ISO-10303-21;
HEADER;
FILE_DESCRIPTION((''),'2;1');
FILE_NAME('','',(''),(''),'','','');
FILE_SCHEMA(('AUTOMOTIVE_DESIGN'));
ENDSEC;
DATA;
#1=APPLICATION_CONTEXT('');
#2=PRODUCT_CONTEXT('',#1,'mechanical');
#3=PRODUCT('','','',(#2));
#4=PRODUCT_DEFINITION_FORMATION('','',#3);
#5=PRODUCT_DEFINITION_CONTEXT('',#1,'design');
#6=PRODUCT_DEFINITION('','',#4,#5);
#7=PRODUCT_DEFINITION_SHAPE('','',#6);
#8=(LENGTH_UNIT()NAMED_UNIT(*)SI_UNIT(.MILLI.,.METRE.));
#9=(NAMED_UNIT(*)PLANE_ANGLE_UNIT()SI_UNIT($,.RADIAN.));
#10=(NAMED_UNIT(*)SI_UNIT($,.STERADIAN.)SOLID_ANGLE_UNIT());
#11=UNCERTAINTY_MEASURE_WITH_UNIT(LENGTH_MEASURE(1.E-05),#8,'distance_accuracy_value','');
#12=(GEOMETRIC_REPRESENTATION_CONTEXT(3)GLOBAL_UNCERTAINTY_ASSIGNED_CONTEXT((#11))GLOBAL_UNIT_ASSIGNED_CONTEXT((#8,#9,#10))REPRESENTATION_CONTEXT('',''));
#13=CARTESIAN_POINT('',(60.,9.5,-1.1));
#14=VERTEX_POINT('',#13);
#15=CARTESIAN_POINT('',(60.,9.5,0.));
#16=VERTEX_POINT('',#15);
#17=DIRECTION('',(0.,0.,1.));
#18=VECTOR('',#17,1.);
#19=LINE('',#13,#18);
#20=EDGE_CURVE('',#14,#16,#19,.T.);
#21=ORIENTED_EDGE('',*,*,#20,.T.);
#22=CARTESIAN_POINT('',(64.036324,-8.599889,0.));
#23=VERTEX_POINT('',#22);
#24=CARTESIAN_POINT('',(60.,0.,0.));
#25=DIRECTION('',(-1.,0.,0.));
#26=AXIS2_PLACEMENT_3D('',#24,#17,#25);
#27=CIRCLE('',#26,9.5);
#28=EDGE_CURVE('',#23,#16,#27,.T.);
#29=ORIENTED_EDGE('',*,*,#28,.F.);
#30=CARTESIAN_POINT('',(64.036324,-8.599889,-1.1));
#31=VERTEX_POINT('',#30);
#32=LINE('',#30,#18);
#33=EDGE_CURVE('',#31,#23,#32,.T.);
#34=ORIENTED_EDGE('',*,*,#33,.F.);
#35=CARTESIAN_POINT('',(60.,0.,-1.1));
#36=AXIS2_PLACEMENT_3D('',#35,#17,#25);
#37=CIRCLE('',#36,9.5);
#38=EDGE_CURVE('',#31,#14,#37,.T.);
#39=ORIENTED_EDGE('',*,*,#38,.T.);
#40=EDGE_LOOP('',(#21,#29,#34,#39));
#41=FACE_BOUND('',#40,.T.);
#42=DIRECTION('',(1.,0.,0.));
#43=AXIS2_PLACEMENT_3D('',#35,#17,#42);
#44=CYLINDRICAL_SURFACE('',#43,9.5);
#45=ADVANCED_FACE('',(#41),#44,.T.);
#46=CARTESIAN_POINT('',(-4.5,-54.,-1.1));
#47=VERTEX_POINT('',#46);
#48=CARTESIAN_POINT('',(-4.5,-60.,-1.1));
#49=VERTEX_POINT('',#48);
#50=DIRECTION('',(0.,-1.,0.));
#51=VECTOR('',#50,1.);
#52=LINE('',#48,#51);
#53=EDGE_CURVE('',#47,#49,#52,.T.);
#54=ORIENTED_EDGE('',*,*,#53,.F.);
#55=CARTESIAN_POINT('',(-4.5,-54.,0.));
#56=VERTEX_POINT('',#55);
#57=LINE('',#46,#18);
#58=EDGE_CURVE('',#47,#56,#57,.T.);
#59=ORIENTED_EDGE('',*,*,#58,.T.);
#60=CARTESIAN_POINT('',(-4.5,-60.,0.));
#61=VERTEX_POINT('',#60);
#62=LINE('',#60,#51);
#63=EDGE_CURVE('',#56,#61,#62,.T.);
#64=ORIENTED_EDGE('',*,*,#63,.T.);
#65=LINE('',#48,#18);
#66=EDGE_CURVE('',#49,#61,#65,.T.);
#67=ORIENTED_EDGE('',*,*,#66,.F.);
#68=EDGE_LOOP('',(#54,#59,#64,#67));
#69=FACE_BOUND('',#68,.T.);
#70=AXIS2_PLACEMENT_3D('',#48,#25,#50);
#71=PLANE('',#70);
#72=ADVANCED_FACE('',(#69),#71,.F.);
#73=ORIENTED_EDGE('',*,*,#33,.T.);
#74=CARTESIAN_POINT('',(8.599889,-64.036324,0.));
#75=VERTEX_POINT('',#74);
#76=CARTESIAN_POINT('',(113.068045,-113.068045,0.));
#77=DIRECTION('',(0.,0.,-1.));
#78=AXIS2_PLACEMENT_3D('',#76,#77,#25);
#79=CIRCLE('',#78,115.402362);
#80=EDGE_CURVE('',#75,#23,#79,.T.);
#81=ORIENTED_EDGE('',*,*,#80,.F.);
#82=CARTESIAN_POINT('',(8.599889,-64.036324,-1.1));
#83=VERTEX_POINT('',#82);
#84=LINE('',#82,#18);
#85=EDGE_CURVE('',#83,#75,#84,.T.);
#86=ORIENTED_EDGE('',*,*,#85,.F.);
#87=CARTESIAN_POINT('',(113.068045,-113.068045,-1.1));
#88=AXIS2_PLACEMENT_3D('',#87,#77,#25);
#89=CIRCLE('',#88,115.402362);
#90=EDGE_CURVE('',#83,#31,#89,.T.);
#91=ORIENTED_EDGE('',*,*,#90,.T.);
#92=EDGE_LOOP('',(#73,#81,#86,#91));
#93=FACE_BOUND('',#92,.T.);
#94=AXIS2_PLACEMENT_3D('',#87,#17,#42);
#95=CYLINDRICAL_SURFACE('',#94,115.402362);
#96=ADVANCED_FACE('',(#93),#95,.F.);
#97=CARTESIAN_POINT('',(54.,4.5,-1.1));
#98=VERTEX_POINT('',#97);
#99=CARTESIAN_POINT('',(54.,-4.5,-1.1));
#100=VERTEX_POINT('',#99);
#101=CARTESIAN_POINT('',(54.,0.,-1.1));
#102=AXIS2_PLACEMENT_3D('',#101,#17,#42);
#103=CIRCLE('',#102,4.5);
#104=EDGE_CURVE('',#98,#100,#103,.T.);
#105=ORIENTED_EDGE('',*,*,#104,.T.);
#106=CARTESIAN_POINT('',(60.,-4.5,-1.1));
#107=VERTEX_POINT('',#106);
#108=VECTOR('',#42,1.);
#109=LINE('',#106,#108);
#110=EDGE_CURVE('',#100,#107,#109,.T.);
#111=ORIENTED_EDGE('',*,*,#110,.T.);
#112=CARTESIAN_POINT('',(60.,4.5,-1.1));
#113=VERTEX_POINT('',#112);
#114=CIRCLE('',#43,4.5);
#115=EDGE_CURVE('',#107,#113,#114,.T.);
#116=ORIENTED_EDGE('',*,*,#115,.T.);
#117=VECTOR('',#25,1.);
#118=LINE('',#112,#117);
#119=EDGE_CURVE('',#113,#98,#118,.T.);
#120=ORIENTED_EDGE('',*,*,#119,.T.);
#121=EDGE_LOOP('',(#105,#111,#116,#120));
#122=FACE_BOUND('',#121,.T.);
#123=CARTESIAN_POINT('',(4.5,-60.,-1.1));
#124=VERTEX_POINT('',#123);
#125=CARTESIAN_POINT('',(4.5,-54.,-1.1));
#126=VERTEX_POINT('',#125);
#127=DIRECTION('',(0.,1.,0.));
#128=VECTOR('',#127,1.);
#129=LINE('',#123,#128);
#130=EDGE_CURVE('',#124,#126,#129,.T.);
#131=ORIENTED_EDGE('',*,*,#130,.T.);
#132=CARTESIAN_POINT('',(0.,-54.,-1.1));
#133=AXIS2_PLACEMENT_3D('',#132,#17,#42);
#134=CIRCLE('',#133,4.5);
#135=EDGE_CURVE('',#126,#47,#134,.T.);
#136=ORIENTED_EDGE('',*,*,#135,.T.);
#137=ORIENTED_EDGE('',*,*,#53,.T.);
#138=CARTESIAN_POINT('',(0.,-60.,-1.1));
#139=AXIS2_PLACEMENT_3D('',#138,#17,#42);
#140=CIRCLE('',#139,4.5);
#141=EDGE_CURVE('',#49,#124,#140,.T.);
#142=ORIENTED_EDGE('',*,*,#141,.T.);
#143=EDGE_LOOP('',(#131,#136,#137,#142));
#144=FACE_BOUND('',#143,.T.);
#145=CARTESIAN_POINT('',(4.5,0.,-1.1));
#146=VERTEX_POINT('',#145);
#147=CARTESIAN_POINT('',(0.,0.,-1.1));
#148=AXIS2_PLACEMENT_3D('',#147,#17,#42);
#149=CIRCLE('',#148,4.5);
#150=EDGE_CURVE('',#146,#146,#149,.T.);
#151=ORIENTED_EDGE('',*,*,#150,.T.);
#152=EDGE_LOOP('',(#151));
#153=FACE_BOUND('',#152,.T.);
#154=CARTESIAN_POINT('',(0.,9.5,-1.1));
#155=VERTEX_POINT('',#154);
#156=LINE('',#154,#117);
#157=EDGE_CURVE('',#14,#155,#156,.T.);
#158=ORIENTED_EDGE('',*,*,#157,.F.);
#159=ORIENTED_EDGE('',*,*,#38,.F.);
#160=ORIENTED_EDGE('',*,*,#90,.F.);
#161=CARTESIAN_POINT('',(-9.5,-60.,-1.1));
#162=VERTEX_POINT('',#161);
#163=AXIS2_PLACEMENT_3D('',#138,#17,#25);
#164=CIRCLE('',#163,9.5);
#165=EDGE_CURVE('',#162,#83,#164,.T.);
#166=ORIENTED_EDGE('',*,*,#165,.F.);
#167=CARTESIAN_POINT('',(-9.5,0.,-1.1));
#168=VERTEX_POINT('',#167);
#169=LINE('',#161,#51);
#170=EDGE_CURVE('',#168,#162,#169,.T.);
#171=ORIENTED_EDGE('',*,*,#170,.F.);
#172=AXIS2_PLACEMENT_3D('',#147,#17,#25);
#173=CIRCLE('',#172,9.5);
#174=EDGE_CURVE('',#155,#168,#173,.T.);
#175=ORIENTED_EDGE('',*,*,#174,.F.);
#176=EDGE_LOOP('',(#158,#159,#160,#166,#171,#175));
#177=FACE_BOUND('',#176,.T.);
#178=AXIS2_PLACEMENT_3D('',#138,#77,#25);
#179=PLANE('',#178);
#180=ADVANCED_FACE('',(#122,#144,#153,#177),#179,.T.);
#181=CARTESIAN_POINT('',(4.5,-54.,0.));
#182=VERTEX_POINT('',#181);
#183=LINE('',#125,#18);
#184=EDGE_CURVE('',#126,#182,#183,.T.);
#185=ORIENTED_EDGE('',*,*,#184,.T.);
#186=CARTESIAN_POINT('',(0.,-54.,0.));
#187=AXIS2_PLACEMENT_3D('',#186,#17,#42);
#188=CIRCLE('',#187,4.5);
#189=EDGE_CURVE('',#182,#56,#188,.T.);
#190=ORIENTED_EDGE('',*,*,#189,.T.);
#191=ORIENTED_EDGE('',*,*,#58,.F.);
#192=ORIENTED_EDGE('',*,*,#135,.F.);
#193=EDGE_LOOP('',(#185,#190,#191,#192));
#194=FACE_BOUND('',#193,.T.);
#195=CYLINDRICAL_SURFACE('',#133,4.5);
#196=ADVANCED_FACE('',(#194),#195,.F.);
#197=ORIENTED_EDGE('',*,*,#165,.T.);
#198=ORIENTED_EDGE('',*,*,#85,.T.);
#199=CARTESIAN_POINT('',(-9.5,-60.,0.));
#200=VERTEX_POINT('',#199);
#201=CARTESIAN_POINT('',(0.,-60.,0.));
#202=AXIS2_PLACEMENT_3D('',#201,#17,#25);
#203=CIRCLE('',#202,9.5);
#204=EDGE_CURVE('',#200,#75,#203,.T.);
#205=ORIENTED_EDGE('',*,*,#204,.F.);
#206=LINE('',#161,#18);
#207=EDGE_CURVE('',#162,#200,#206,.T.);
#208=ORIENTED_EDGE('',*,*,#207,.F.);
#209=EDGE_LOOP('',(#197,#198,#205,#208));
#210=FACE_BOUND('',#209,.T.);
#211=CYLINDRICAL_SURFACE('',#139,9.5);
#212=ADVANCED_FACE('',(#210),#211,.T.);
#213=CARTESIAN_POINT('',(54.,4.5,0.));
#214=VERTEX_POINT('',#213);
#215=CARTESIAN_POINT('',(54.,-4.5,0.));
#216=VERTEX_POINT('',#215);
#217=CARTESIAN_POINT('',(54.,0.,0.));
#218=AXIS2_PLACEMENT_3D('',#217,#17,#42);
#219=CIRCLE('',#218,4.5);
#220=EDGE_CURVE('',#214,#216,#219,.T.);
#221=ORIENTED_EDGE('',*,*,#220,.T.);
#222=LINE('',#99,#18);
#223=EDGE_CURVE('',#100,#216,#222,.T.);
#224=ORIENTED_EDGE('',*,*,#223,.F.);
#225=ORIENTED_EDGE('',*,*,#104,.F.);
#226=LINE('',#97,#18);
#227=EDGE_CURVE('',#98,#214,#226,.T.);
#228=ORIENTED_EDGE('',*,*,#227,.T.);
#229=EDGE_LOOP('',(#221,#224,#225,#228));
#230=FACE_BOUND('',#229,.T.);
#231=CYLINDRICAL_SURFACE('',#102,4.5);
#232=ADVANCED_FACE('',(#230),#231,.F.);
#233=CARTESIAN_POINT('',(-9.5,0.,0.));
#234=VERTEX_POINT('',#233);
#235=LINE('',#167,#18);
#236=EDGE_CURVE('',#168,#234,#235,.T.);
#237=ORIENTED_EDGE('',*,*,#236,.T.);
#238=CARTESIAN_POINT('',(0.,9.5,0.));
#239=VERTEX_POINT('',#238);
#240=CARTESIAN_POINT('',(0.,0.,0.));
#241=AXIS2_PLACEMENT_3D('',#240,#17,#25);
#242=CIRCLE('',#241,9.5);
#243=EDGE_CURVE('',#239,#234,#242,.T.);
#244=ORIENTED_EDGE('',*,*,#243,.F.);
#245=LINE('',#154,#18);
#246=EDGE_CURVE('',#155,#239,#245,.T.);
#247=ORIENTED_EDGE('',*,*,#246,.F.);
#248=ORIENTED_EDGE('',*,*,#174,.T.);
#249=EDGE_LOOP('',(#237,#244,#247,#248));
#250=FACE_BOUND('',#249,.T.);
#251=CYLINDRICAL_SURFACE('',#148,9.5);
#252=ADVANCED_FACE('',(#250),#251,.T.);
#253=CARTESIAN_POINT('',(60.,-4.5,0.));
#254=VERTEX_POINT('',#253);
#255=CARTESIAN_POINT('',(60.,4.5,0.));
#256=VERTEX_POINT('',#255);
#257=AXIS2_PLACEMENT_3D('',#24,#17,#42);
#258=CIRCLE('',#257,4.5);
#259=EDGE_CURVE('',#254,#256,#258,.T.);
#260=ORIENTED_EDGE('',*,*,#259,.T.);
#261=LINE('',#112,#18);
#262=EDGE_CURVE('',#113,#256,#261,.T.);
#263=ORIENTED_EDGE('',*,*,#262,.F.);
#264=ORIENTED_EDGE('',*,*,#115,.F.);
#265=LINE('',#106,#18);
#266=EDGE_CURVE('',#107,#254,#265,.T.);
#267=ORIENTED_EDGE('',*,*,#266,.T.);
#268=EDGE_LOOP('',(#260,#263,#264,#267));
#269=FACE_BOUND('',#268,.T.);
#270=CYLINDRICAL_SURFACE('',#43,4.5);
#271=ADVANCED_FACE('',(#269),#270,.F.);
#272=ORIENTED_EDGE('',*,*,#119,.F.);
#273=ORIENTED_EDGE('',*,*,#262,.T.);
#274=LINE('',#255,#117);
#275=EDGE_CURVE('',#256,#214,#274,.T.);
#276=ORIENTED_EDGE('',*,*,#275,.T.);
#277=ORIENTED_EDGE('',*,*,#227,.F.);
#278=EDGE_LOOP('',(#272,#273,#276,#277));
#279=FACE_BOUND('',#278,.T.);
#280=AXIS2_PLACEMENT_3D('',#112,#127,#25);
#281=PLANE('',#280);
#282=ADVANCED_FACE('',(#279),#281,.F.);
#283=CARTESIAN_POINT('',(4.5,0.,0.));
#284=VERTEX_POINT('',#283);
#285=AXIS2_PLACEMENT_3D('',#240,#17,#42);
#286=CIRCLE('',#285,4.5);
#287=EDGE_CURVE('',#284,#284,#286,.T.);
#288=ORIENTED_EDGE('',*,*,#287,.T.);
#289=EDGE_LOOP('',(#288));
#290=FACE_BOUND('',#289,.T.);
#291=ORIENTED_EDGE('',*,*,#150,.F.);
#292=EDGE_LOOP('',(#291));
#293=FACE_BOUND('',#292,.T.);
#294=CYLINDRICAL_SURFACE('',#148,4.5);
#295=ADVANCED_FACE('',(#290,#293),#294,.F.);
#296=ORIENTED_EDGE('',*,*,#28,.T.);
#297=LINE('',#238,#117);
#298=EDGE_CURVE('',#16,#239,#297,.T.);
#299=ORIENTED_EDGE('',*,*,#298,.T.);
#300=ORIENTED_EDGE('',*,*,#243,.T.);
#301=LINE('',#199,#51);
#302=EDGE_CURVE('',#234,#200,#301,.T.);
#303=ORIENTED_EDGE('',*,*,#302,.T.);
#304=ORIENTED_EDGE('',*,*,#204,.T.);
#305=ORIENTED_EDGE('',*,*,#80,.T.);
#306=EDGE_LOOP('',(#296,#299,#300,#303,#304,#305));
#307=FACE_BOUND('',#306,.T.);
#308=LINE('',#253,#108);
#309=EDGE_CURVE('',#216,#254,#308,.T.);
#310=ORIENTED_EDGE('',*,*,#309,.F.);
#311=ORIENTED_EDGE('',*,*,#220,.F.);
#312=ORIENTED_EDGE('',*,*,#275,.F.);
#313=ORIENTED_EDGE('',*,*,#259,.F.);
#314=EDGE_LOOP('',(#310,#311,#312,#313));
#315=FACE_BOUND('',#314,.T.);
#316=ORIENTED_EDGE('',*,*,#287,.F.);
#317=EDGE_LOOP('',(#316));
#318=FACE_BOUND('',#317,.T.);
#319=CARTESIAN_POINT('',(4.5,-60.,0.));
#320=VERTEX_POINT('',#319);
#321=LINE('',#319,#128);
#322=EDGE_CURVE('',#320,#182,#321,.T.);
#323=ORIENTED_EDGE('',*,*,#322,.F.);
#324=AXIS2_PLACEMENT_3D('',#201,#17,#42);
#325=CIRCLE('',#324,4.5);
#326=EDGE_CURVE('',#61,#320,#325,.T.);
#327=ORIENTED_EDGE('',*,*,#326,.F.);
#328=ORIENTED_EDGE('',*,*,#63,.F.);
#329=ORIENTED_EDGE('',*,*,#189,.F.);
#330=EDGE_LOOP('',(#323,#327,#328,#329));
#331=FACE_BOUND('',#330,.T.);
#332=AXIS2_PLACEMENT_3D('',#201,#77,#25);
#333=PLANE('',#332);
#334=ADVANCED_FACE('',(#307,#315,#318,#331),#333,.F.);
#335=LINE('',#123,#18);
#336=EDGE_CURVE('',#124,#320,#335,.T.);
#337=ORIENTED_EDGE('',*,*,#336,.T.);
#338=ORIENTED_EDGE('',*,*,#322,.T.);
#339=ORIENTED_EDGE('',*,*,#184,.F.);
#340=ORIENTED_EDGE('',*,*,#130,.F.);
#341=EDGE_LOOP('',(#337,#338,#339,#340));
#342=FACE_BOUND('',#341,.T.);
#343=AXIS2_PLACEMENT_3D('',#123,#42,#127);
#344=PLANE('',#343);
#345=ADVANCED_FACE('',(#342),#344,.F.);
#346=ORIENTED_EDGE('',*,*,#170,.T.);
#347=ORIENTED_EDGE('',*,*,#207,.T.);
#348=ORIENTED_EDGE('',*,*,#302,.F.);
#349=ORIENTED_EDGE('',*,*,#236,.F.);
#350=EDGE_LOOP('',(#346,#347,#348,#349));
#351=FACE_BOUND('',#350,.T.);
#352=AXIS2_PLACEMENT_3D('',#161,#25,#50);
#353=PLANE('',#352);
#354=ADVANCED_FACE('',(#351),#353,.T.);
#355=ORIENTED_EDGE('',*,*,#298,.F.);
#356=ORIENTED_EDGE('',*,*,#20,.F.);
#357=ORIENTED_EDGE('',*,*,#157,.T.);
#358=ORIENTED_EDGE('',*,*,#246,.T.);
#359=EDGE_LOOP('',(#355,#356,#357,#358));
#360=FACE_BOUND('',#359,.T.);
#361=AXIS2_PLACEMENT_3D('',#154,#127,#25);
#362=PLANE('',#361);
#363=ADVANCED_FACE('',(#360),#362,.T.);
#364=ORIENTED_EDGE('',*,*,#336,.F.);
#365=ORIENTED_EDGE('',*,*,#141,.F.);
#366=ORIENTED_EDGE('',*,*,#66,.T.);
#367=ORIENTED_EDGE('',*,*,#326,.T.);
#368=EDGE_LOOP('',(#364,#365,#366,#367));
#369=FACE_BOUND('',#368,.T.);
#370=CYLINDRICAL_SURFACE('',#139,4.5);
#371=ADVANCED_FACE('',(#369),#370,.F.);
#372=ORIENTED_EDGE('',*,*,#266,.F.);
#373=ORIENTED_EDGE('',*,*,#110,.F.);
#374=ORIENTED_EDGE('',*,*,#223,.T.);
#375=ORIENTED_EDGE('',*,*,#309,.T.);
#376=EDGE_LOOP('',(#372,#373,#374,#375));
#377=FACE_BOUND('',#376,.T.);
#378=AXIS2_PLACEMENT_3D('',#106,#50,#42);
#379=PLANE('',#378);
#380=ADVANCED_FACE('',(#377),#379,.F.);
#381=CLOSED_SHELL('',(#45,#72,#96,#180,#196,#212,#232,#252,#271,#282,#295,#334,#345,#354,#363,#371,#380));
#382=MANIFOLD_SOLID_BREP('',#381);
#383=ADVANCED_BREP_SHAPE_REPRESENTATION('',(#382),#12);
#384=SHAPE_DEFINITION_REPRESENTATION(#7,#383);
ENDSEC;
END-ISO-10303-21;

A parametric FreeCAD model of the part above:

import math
import FreeCAD as App
import Part
import Sketcher

V = App.Vector
Q = App.Units.Quantity

doc = App.newDocument("Part")
body = doc.addObject("PartDesign::Body", "Body")

# Sketch on XY plane
sketch1 = body.newObject("Sketcher::SketchObject", "Sketch")
sketch1.AttachmentSupport = (doc.getObject("XY_Plane"), [""])
sketch1.MapMode = "FlatFace"
sketch1.addGeometry([
    Part.LineSegment(V(-9.5, 0, 0), V(-9.5, -60, 0)),  # 0
    Part.ArcOfCircle(Part.Circle(V(0, -60, 0), V(0, 0, 1), 9.5), math.radians(180), math.radians(335)),  # 1
    Part.ArcOfCircle(Part.Circle(V(113.1, -113.1, 0), V(0, 0, 1), 115.4), math.radians(115), math.radians(155)),  # 2
    Part.ArcOfCircle(Part.Circle(V(60, 0, 0), V(0, 0, 1), 9.5), math.radians(-65), math.radians(90)),  # 3
    Part.LineSegment(V(60, 9.5, 0), V(0, 9.5, 0)),  # 4
    Part.ArcOfCircle(Part.Circle(V(0, 0, 0), V(0, 0, 1), 9.5), math.radians(90), math.radians(180)),  # 5
    Part.LineSegment(V(-4.5, -60, 0), V(-4.5, -54, 0)),  # 6
    Part.ArcOfCircle(Part.Circle(V(0, -54, 0), V(0, 0, 1), 4.5), math.radians(0), math.radians(180)),  # 7
    Part.LineSegment(V(4.5, -54, 0), V(4.5, -60, 0)),  # 8
    Part.ArcOfCircle(Part.Circle(V(0, -60, 0), V(0, 0, 1), 4.5), math.radians(180), math.radians(360)),  # 9
    Part.LineSegment(V(60, -4.5, 0), V(54, -4.5, 0)),  # 10
    Part.ArcOfCircle(Part.Circle(V(54, 0, 0), V(0, 0, 1), 4.5), math.radians(90), math.radians(270)),  # 11
    Part.LineSegment(V(54, 4.5, 0), V(60, 4.5, 0)),  # 12
    Part.ArcOfCircle(Part.Circle(V(60, 0, 0), V(0, 0, 1), 4.5), math.radians(-90), math.radians(90)),  # 13
    Part.Circle(V(0, 0, 0), V(0, 0, 1), 4.5),  # 14
], False)
sketch1.addConstraint([
    Sketcher.Constraint("Tangent", 0, 2, 1, 1),
    Sketcher.Constraint("Tangent", 1, 2, 2, 2),
    Sketcher.Constraint("Tangent", 2, 1, 3, 1),
    Sketcher.Constraint("Tangent", 3, 2, 4, 1),
    Sketcher.Constraint("Tangent", 4, 2, 5, 1),
    Sketcher.Constraint("Tangent", 5, 2, 0, 1),
    Sketcher.Constraint("Tangent", 6, 2, 7, 2),
    Sketcher.Constraint("Tangent", 7, 1, 8, 1),
    Sketcher.Constraint("Tangent", 8, 2, 9, 2),
    Sketcher.Constraint("Tangent", 9, 1, 6, 1),
    Sketcher.Constraint("Tangent", 10, 2, 11, 2),
    Sketcher.Constraint("Tangent", 11, 1, 12, 1),
    Sketcher.Constraint("Tangent", 12, 2, 13, 2),
    Sketcher.Constraint("Tangent", 13, 1, 10, 1),
    Sketcher.Constraint("Vertical", 0),
    Sketcher.Constraint("Horizontal", 4),
    Sketcher.Constraint("Vertical", 6),
    Sketcher.Constraint("Vertical", 8),
    Sketcher.Constraint("Horizontal", 10),
    Sketcher.Constraint("Horizontal", 12),
    Sketcher.Constraint("Coincident", 5, 3, -1, 1),
    Sketcher.Constraint("Coincident", 14, 3, -1, 1),
    Sketcher.Constraint("Coincident", 9, 3, 1, 3),
    Sketcher.Constraint("Coincident", 13, 3, 3, 3),
    Sketcher.Constraint("Equal", 1, 3),
    Sketcher.Constraint("Equal", 3, 5),
    Sketcher.Constraint("Equal", 9, 11),
    Sketcher.Constraint("Equal", 13, 14),
    Sketcher.Constraint("Equal", 4, 0),
    Sketcher.Constraint("Equal", 12, 6),
    Sketcher.Constraint("Diameter", 14, Q("9 mm")),
    Sketcher.Constraint("Radius", 1, Q("9.5 mm")),
    Sketcher.Constraint("DistanceX", 4, 2, 4, 1, Q("60 mm")),
    Sketcher.Constraint("DistanceX", 10, 2, 10, 1, Q("6 mm")),
    Sketcher.Constraint("Radius", 2, Q("115.402362 mm")),
])
pad1 = body.newObject("PartDesign::Pad", "Pad")
pad1.Profile = sketch1
pad1.Length = 1.1
pad1.Reversed = True

doc.recompute()
